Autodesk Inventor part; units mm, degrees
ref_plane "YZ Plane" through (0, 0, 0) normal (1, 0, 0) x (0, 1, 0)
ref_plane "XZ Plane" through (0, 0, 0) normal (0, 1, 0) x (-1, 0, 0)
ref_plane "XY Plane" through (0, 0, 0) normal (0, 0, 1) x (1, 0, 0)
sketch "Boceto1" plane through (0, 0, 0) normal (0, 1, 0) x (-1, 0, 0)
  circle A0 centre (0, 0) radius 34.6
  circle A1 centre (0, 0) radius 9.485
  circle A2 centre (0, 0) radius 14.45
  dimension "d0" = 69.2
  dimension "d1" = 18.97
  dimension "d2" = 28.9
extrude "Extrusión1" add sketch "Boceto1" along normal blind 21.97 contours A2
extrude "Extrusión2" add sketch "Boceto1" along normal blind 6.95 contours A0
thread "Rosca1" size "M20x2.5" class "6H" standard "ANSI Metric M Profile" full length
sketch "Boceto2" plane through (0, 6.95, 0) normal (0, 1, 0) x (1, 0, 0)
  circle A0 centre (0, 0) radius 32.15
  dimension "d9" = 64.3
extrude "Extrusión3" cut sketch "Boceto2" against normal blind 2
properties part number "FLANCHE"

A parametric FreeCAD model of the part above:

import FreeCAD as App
import Part
import Sketcher

doc = App.newDocument("Part")
body = doc.addObject("PartDesign::Body", "Body")
body.AllowCompound = True

sketch1 = body.newObject("Sketcher::SketchObject", "Sketch")
sketch1.AttachmentSupport = (doc.getObject("XZ_Plane"), [""])
sketch1.MapMode = "FlatFace"
sketch1.addGeometry([
    Part.Circle(App.Vector(0, 0, 0), App.Vector(0, 0, 1), 14),
    Part.Circle(App.Vector(0, 0, 0), App.Vector(0, 0, 1), 9),
], False)
sketch1.addConstraint([
    Sketcher.Constraint("Coincident", 0, 3, -1, 1),
    Sketcher.Constraint("Coincident", 1, 3, -1, 1),
    Sketcher.Constraint("Diameter", 0, 28.9),
    Sketcher.Constraint("Diameter", 1, 18.97),
])
pad1 = body.newObject("PartDesign::Pad", "Pad")
pad1.Profile = sketch1
pad1.Length = 21.97
pad1.Reversed = True

sketch2 = body.newObject("Sketcher::SketchObject", "Sketch001")
sketch2.AttachmentSupport = (doc.getObject("XZ_Plane"), [""])
sketch2.MapMode = "FlatFace"
sketch2.addGeometry([
    Part.Circle(App.Vector(0, 0, 0), App.Vector(0, 0, 1), 35),
    Part.Circle(App.Vector(0, 0, 0), App.Vector(0, 0, 1), 14),
], False)
sketch2.addConstraint([
    Sketcher.Constraint("Coincident", 0, 3, -1, 1),
    Sketcher.Constraint("Coincident", 1, 3, -1, 1),
    Sketcher.Constraint("Diameter", 0, 69.2),
    Sketcher.Constraint("Diameter", 1, 28.9),
])
pad2 = body.newObject("PartDesign::Pad", "Pad001")
pad2.Profile = sketch2
pad2.Length = 6.95
pad2.Reversed = True

sketch3 = body.newObject("Sketcher::SketchObject", "Sketch002")
sketch3.AttachmentSupport = (doc.getObject("XZ_Plane"), [""])
sketch3.MapMode = "FlatFace"
sketch3.AttachmentOffset = App.Placement(App.Vector(0, 0, -6.95), App.Rotation())
sketch3.addGeometry(Part.Circle(App.Vector(0, 0, 0), App.Vector(0, 0, 1), 32), False)
sketch3.addConstraint([
    Sketcher.Constraint("Coincident", 0, 3, -1, 1),
    Sketcher.Constraint("Diameter", 0, 64.3),
])
pocket1 = body.newObject("PartDesign::Pocket", "Pocket")
pocket1.Profile = sketch3
pocket1.Length = 2
pocket1.Reversed = True

doc.recompute()
